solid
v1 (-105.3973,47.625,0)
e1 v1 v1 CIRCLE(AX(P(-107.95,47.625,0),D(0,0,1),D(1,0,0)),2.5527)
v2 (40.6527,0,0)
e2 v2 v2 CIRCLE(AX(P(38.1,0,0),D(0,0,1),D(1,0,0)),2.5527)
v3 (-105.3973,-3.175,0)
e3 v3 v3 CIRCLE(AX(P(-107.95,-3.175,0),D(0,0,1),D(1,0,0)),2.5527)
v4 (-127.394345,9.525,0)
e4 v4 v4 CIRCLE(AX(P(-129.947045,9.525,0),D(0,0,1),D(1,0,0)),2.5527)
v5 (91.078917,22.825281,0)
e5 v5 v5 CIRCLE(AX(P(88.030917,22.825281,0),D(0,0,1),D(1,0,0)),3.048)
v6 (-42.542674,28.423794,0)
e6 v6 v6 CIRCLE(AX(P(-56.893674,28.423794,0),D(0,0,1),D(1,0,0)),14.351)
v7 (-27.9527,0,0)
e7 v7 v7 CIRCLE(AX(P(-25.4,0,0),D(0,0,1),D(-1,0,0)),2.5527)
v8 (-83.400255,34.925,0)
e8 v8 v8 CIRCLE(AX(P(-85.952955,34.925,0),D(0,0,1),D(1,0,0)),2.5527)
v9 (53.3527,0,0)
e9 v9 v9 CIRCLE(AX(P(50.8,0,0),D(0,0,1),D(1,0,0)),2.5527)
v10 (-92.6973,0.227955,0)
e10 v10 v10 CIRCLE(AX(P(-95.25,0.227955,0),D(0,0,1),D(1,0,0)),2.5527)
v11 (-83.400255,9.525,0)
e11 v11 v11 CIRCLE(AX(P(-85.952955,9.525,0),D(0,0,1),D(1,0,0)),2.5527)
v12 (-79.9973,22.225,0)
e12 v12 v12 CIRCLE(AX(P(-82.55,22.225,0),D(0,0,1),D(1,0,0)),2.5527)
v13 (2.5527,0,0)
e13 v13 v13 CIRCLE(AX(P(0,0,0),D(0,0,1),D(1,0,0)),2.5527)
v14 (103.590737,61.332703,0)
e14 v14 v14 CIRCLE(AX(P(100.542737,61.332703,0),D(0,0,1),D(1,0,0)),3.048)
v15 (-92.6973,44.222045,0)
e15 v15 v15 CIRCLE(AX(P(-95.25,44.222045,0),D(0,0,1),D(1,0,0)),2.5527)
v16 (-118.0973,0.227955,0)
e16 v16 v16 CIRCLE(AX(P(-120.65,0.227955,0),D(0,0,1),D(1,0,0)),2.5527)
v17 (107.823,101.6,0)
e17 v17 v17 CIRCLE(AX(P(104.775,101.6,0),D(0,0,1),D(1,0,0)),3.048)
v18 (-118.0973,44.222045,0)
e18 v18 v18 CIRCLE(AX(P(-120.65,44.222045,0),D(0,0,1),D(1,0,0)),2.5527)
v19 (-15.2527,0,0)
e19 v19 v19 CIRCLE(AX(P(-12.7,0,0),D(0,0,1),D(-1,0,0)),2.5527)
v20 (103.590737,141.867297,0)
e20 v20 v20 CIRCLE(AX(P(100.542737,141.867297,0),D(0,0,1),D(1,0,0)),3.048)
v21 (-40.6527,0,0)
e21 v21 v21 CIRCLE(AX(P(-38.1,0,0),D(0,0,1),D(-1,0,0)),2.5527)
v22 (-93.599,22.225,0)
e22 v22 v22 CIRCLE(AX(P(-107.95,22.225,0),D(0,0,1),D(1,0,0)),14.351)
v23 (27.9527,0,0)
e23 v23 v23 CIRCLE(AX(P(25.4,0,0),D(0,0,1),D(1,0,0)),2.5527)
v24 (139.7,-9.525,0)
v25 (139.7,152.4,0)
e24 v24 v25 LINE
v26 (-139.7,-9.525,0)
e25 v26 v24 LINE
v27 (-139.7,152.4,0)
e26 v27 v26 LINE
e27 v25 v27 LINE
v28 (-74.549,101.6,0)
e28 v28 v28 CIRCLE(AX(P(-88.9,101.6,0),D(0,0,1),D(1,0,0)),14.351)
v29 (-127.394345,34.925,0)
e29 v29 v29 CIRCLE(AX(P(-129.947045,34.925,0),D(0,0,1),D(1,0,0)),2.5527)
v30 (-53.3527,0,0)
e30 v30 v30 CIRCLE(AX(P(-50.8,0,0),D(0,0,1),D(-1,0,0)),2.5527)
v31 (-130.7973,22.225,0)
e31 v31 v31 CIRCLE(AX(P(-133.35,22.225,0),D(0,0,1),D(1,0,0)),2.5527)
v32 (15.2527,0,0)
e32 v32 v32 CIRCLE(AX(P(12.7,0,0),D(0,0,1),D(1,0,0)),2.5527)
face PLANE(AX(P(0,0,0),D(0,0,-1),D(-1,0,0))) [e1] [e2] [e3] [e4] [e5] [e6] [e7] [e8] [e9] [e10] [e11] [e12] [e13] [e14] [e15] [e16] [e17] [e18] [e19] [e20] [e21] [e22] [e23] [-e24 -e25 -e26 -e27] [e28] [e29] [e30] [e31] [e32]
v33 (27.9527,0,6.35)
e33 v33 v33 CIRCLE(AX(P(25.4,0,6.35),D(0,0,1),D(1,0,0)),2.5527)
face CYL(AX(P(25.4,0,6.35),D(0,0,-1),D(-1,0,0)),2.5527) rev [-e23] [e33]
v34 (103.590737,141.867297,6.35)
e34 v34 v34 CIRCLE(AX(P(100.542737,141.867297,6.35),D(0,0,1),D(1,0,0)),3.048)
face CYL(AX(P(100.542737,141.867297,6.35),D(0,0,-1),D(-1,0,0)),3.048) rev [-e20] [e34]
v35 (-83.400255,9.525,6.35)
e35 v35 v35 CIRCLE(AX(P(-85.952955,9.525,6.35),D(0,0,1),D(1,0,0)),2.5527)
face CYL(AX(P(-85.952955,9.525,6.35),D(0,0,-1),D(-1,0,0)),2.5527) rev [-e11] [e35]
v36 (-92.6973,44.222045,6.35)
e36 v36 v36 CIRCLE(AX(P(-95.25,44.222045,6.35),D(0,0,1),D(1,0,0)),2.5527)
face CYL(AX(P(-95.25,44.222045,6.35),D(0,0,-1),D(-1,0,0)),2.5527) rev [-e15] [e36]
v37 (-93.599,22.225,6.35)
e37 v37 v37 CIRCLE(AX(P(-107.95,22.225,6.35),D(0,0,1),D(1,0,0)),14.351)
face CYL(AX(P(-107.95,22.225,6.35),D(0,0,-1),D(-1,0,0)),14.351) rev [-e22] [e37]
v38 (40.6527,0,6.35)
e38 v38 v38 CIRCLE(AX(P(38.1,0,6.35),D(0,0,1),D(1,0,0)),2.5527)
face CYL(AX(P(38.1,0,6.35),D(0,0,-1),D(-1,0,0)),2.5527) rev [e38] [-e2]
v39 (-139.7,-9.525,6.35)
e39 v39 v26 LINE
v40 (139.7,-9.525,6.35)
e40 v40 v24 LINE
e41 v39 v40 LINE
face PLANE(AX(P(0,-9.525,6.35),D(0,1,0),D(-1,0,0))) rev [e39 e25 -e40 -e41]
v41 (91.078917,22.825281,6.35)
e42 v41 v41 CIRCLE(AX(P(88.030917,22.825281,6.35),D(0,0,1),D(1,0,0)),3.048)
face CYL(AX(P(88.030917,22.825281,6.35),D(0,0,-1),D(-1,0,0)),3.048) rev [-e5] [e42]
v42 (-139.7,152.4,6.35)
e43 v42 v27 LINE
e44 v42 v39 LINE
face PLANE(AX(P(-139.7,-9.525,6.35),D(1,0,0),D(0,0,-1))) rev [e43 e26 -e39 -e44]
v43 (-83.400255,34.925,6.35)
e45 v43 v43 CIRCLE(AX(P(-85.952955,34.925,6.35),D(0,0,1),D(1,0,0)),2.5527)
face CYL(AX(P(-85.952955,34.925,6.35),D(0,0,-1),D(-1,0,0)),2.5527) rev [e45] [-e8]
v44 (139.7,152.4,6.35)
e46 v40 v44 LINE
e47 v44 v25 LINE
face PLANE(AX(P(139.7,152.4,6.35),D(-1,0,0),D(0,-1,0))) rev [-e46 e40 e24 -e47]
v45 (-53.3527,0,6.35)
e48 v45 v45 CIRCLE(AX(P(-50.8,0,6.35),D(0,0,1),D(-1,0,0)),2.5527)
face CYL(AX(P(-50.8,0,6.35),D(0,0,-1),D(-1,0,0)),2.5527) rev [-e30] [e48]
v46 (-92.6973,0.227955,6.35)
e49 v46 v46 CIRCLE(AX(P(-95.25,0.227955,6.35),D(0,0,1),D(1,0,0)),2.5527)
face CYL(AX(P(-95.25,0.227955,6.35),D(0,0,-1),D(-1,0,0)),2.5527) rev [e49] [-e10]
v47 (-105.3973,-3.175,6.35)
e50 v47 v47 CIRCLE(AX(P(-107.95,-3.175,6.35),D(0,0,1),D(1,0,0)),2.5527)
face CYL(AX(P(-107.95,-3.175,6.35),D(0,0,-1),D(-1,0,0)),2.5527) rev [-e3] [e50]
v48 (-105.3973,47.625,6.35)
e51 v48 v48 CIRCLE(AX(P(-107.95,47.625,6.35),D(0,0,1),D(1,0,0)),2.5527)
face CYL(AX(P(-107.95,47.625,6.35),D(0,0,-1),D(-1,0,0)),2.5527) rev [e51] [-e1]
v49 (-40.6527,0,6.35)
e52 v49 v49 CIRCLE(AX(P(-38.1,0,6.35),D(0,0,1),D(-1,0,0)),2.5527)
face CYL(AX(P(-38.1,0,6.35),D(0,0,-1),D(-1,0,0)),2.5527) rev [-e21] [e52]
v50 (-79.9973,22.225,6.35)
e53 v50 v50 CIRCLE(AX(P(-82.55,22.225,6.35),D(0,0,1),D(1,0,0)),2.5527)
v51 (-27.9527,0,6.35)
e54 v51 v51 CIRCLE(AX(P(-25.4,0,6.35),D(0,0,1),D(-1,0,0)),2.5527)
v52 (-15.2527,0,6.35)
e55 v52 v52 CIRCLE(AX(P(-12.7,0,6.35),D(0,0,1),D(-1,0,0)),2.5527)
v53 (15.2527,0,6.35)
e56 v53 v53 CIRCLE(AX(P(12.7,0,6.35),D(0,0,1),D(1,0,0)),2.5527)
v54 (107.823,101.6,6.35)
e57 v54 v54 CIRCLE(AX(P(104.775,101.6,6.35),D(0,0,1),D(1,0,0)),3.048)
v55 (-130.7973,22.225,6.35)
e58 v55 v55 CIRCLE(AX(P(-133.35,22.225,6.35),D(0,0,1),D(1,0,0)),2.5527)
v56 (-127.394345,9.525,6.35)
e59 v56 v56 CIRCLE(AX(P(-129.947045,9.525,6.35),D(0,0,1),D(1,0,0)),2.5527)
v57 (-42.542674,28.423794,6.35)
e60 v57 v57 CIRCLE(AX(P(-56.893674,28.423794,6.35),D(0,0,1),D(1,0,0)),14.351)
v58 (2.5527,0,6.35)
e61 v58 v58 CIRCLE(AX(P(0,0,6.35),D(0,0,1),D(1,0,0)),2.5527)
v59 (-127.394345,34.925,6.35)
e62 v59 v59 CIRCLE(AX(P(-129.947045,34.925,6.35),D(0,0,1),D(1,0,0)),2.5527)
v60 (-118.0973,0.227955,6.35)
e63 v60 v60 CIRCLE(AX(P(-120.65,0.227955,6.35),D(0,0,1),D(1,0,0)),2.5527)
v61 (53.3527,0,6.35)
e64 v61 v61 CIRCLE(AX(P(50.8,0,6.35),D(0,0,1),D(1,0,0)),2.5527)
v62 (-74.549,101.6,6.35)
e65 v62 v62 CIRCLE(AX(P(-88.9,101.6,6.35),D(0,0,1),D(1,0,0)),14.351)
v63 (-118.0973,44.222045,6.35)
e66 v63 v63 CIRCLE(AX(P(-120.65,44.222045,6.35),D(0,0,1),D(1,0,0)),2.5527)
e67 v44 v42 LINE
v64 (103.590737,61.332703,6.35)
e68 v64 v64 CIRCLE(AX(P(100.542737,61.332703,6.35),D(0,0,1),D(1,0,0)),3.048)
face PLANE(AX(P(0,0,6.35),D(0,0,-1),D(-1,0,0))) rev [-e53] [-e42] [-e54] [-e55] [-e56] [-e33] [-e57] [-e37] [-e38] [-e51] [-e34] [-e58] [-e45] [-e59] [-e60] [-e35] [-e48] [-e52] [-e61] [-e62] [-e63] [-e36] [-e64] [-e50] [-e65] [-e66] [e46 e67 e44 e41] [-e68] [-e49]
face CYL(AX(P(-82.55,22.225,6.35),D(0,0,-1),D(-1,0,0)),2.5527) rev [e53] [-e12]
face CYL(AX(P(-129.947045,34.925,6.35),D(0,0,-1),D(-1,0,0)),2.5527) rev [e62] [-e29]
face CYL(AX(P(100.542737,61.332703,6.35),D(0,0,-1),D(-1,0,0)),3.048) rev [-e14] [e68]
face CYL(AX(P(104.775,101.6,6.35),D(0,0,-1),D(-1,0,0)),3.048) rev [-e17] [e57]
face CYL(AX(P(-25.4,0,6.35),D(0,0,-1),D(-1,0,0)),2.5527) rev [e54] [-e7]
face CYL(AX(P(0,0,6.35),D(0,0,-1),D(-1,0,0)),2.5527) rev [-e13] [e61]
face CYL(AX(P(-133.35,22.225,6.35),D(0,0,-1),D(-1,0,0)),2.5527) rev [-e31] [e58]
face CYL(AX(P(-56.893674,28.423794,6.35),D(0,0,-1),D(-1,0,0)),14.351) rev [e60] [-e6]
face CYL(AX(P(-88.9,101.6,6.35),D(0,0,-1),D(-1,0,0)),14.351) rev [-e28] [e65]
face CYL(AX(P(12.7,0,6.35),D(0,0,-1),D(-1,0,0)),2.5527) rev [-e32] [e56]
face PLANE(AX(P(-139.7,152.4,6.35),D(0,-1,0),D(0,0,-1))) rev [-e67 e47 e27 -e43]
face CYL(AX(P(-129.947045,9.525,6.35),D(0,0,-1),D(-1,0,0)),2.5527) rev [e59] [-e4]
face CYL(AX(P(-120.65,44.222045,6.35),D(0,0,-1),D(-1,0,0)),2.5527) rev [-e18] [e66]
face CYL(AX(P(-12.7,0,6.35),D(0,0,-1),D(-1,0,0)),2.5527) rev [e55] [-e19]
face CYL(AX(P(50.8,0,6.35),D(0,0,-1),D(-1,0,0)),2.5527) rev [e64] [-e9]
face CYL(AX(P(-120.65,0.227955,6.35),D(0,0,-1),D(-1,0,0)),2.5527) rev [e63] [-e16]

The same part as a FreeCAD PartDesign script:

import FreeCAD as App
import Part
import Sketcher
from FreeCAD import Vector
Q = App.Units.Quantity

doc = App.newDocument("Part")
body = doc.addObject("PartDesign::Body", "Body")

# Sketch on XY plane
sketch1 = body.newObject("Sketcher::SketchObject", "Sketch")
sketch1.AttachmentSupport = (doc.getObject("XY_Plane"), [""])
sketch1.MapMode = "FlatFace"
sketch1.addGeometry([
    Part.LineSegment(Vector(-139.7, -9.5, 0), Vector(139.7, -9.5, 0)),  # 0
    Part.LineSegment(Vector(139.7, -9.5, 0), Vector(139.7, 152.4, 0)),  # 1
    Part.LineSegment(Vector(139.7, 152.4, 0), Vector(-139.7, 152.4, 0)),  # 2
    Part.LineSegment(Vector(-139.7, 152.4, 0), Vector(-139.7, -9.5, 0)),  # 3
    Part.Circle(Vector(50.8, 0, 0), Vector(0, 0, 1), 2.6),  # 4
    Part.Circle(Vector(88, 22.8, 0), Vector(0, 0, 1), 3),  # 5
    Part.Circle(Vector(38.1, 0, 0), Vector(0, 0, 1), 2.6),  # 6
    Part.Circle(Vector(25.4, 0, 0), Vector(0, 0, 1), 2.6),  # 7
    Part.Circle(Vector(12.7, 0, 0), Vector(0, 0, 1), 2.6),  # 8
    Part.Circle(Vector(0, 0, 0), Vector(0, 0, 1), 2.6),  # 9
    Part.Circle(Vector(-12.7, 0, 0), Vector(0, 0, 1), 2.6),  # 10
    Part.Circle(Vector(100.5, 61.3, 0), Vector(0, 0, 1), 3),  # 11
    Part.Circle(Vector(-25.4, 0, 0), Vector(0, 0, 1), 2.6),  # 12
    Part.Circle(Vector(-38.1, 0, 0), Vector(0, 0, 1), 2.6),  # 13
    Part.Circle(Vector(-50.8, 0, 0), Vector(0, 0, 1), 2.6),  # 14
    Part.Circle(Vector(-56.9, 28.4, 0), Vector(0, 0, 1), 14.4),  # 15
    Part.Circle(Vector(-95.2, 0.2, 0), Vector(0, 0, 1), 2.6),  # 16
    Part.Circle(Vector(-86, 9.5, 0), Vector(0, 0, 1), 2.6),  # 17
    Part.Circle(Vector(-108, -3.2, 0), Vector(0, 0, 1), 2.6),  # 18
    Part.Circle(Vector(-120.7, 0.2, 0), Vector(0, 0, 1), 2.6),  # 19
    Part.Circle(Vector(-129.9, 9.5, 0), Vector(0, 0, 1), 2.6),  # 20
    Part.Circle(Vector(-82.5, 22.2, 0), Vector(0, 0, 1), 2.6),  # 21
    Part.Circle(Vector(-108, 22.2, 0), Vector(0, 0, 1), 14.4),  # 22
    Part.Circle(Vector(-133.3, 22.2, 0), Vector(0, 0, 1), 2.6),  # 23
    Part.Circle(Vector(-86, 34.9, 0), Vector(0, 0, 1), 2.6),  # 24
    Part.Circle(Vector(-95.2, 44.2, 0), Vector(0, 0, 1), 2.6),  # 25
    Part.Circle(Vector(-129.9, 34.9, 0), Vector(0, 0, 1), 2.6),  # 26
    Part.Circle(Vector(-120.7, 44.2, 0), Vector(0, 0, 1), 2.6),  # 27
    Part.Circle(Vector(-108, 47.6, 0), Vector(0, 0, 1), 2.6),  # 28
    Part.Circle(Vector(104.8, 101.6, 0), Vector(0, 0, 1), 3),  # 29
    Part.Circle(Vector(100.5, 141.9, 0), Vector(0, 0, 1), 3),  # 30
    Part.Circle(Vector(-88.9, 101.6, 0), Vector(0, 0, 1), 14.4),  # 31
], False)
sketch1.addConstraint([
    Sketcher.Constraint("Coincident", 0, 2, 1, 1),
    Sketcher.Constraint("Coincident", 1, 2, 2, 1),
    Sketcher.Constraint("Coincident", 2, 2, 3, 1),
    Sketcher.Constraint("Coincident", 3, 2, 0, 1),
    Sketcher.Constraint("Horizontal", 0),
    Sketcher.Constraint("Vertical", 1),
    Sketcher.Constraint("Horizontal", 2),
    Sketcher.Constraint("Vertical", 3),
    Sketcher.Constraint("Coincident", 9, 3, -1, 1),
    Sketcher.Constraint("Equal", 4, 6),
    Sketcher.Constraint("Equal", 6, 7),
    Sketcher.Constraint("Equal", 7, 8),
    Sketcher.Constraint("Equal", 8, 9),
    Sketcher.Constraint("Equal", 9, 10),
    Sketcher.Constraint("Equal", 5, 11),
    Sketcher.Constraint("Equal", 10, 12),
    Sketcher.Constraint("Equal", 12, 13),
    Sketcher.Constraint("Equal", 13, 14),
    Sketcher.Constraint("Equal", 14, 16),
    Sketcher.Constraint("Equal", 16, 17),
    Sketcher.Constraint("Equal", 17, 18),
    Sketcher.Constraint("Equal", 18, 19),
    Sketcher.Constraint("Equal", 19, 20),
    Sketcher.Constraint("Equal", 20, 21),
    Sketcher.Constraint("Equal", 15, 22),
    Sketcher.Constraint("Equal", 21, 23),
    Sketcher.Constraint("Equal", 23, 24),
    Sketcher.Constraint("Equal", 24, 25),
    Sketcher.Constraint("Equal", 25, 26),
    Sketcher.Constraint("Equal", 26, 27),
    Sketcher.Constraint("Equal", 27, 28),
    Sketcher.Constraint("Equal", 11, 29),
    Sketcher.Constraint("Equal", 29, 30),
    Sketcher.Constraint("Equal", 22, 31),
    Sketcher.Constraint("Symmetric", 8, 3, 10, 3, -1, 1),
    Sketcher.Constraint("Symmetric", 7, 3, 12, 3, -1, 1),
    Sketcher.Constraint("Symmetric", 6, 3, 13, 3, -1, 1),
    Sketcher.Constraint("Symmetric", 4, 3, 14, 3, -1, 1),
    Sketcher.Constraint("PointOnObject", 4, 3, -1),
    Sketcher.Constraint("PointOnObject", 6, 3, -1),
    Sketcher.Constraint("PointOnObject", 7, 3, -1),
    Sketcher.Constraint("PointOnObject", 8, 3, -1),
    Sketcher.Constraint("Horizontal", 16, 3, 19, 3),
    Sketcher.Constraint("Horizontal", 17, 3, 20, 3),
    Sketcher.Constraint("Horizontal", 21, 3, 22, 3),
    Sketcher.Constraint("Horizontal", 22, 3, 23, 3),
    Sketcher.Constraint("Horizontal", 24, 3, 26, 3),
    Sketcher.Constraint("Horizontal", 25, 3, 27, 3),
    Sketcher.Constraint("Horizontal", 29, 3, 31, 3),
    Sketcher.Constraint("Vertical", 18, 3, 22, 3),
    Sketcher.Constraint("Vertical", 17, 3, 24, 3),
    Sketcher.Constraint("Vertical", 16, 3, 25, 3),
    Sketcher.Constraint("Vertical", 20, 3, 26, 3),
    Sketcher.Constraint("Vertical", 19, 3, 27, 3),
    Sketcher.Constraint("Vertical", 22, 3, 28, 3),
    Sketcher.Constraint("Vertical", 11, 3, 30, 3),
    Sketcher.Constraint("Diameter", 5, Q("0.24 in")),
    Sketcher.Constraint("Diameter", 15, Q("1.13 in")),
    Sketcher.Constraint("DistanceX", 0, 1, 0, 2, Q("11 in")),
    Sketcher.Constraint("Diameter", 4, Q("0.201 in")),
    Sketcher.Constraint("DistanceX", -1, 1, 4, 3, Q("2 in")),
    Sketcher.Constraint("DistanceX", -1, 1, 7, 3, Q("1 in")),
    Sketcher.Constraint("DistanceY", -1, 1, 29, 3, Q("4 in")),
    Sketcher.Constraint("DistanceY", -1, 1, 1, 2, Q("6 in")),
    Sketcher.Constraint("DistanceX", 8, 3, 6, 3, Q("1 in")),
    Sketcher.Constraint("DistanceX", 10, 3, 8, 3, Q("1 in")),
    Sketcher.Constraint("DistanceX", 19, 3, 16, 3, Q("1 in")),
    Sketcher.Constraint("DistanceX", 18, 3, 21, 3, Q("1 in")),
    Sketcher.Constraint("DistanceY", 18, 3, 21, 3, Q("1 in")),
    Sketcher.Constraint("DistanceX", 23, 3, 22, 3, Q("1 in")),
    Sketcher.Constraint("DistanceY", 17, 3, 24, 3, Q("1 in")),
    Sketcher.Constraint("DistanceY", 22, 3, 28, 3, Q("1 in")),
    Sketcher.Constraint("DistanceX", 6, 3, 0, 2, Q("4 in")),
    Sketcher.Constraint("DistanceX", 2, 2, 31, 3, Q("2 in")),
    Sketcher.Constraint("DistanceX", 18, 3, 16, 3, Q("0.5 in")),
    Sketcher.Constraint("DistanceY", 18, 3, 17, 3, Q("0.5 in")),
    Sketcher.Constraint("DistanceY", 1, 1, 1, 2, Q("6.375 in")),
    Sketcher.Constraint("DistanceX", 16, 3, -1, 1, Q("3.75 in")),
    Sketcher.Constraint("DistanceY", 3, 2, 20, 3, Q("0.75 in")),
    Sketcher.Constraint("DistanceX", -1, 1, 29, 3, Q("4.125 in")),
    Sketcher.Constraint("DistanceY", -1, 1, 5, 3, Q("22.825281 mm")),
    Sketcher.Constraint("DistanceX", 5, 3, 11, 3, Q("12.51182 mm")),
    Sketcher.Constraint("DistanceY", 16, 3, 15, 3, Q("28.195839 mm")),
    Sketcher.Constraint("DistanceX", 17, 3, 15, 3, Q("29.059281 mm")),
    Sketcher.Constraint("DistanceX", 20, 3, 17, 3, Q("43.994091 mm")),
    Sketcher.Constraint("DistanceY", 15, 3, 25, 3, Q("15.798251 mm")),
    Sketcher.Constraint("DistanceX", -1, 1, 5, 3, Q("88.030917 mm")),
    Sketcher.Constraint("DistanceY", -1, 1, 11, 3, Q("61.332703 mm")),
    Sketcher.Constraint("DistanceX", 15, 3, -1, 1, Q("56.893674 mm")),
    Sketcher.Constraint("DistanceY", -1, 1, 15, 3, Q("28.423794 mm")),
    Sketcher.Constraint("DistanceY", -1, 1, 30, 3, Q("141.867297 mm")),
])
pad1 = body.newObject("PartDesign::Pad", "Pad")
pad1.Profile = sketch1
pad1.Length = Q("0.25 in")

doc.recompute()
